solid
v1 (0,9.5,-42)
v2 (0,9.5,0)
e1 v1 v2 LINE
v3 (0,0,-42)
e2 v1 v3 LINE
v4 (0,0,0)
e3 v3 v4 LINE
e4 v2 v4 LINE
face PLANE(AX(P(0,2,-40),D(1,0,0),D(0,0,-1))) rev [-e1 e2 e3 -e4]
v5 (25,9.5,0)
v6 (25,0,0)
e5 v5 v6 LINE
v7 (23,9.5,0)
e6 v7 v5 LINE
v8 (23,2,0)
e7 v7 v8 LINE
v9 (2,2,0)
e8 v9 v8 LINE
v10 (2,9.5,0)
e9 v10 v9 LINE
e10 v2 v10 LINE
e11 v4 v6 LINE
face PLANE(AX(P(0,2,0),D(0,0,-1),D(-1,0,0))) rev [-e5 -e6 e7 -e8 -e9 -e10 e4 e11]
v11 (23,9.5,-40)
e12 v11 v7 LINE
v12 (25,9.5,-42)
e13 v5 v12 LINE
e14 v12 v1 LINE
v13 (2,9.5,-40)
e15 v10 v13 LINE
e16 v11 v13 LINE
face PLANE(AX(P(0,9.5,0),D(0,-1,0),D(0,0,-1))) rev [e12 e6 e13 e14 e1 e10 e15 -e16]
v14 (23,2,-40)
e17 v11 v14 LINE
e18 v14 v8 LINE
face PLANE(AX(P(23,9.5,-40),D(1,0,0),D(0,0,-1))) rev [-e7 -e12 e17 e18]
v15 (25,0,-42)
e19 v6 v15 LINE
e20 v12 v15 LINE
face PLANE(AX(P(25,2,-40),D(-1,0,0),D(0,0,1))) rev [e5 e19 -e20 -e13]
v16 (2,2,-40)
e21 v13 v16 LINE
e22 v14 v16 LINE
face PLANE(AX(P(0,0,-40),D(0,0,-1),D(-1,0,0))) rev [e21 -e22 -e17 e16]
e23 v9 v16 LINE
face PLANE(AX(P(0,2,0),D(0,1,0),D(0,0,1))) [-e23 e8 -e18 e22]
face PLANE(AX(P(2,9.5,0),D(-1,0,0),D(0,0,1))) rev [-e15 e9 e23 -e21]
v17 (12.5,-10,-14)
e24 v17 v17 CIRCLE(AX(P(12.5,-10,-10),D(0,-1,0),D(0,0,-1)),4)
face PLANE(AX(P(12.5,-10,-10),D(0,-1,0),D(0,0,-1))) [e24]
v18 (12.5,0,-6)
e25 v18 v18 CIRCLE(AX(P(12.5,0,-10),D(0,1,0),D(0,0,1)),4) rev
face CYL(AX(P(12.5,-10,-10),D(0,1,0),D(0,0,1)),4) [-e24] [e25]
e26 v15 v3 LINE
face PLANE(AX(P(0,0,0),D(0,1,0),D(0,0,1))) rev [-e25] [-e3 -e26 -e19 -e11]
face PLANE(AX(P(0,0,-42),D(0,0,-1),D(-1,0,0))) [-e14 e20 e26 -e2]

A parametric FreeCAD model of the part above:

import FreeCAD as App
import Part
import Sketcher
from FreeCAD import Vector

doc = App.newDocument("Part")
params = doc.addObject("Spreadsheet::Sheet", "Params")
for row, (alias, value) in enumerate([
    ("sketch1_width", "25 mm"),
    ("sketch1_height", "40 mm"),
    ("pad1_length", "2 mm"),
    ("sketch2_width", "2 mm"),
    ("sketch2_height", "40 mm"),
    ("pad2_length", "7.5 mm"),
    ("sketch3_diameter", "8 mm"),
    ("pad3_length", "10 mm"),
    ("sketch4_width", "25 mm"),
    ("sketch4_height", "9.5 mm"),
    ("pad4_length", "2 mm"),
], start=1):
    params.set(f"A{row}", alias)
    params.set(f"B{row}", "=" + value)
    params.setAlias(f"B{row}", alias)

body = doc.addObject("PartDesign::Body", "Body")

# Sketch on XZ plane
sketch1 = doc.addObject("Sketcher::SketchObject", "Sketch")
body.addObject(sketch1)
sketch1.AttachmentSupport = (doc.XZ_Plane, [""])
sketch1.MapMode = "FlatFace"
sketch1.addGeometry(Part.LineSegment(Vector(0, -40, 0), Vector(0, 0, 0)), False)
sketch1.addGeometry(Part.LineSegment(Vector(0, 0, 0), Vector(25, 0, 0)), False)
sketch1.addGeometry(Part.LineSegment(Vector(25, 0, 0), Vector(25, -40, 0)), False)
sketch1.addGeometry(Part.LineSegment(Vector(25, -40, 0), Vector(0, -40, 0)), False)
sketch1.addConstraint(Sketcher.Constraint("Coincident", 0, 2, 1, 1))
sketch1.addConstraint(Sketcher.Constraint("Coincident", 1, 2, 2, 1))
sketch1.addConstraint(Sketcher.Constraint("Coincident", 2, 2, 3, 1))
sketch1.addConstraint(Sketcher.Constraint("Coincident", 3, 2, 0, 1))
sketch1.addConstraint(Sketcher.Constraint("Vertical", 0))
sketch1.addConstraint(Sketcher.Constraint("Horizontal", 1))
sketch1.addConstraint(Sketcher.Constraint("Vertical", 2))
sketch1.addConstraint(Sketcher.Constraint("Horizontal", 3))
sketch1.addConstraint(Sketcher.Constraint("Coincident", 0, 2, -1, 1))
sketch1.addConstraint(Sketcher.Constraint("DistanceX", 1, 1, 1, 2, 25.0))
sketch1.addConstraint(Sketcher.Constraint("DistanceY", 0, 1, 0, 2, 40.0))
sketch1.setExpression("Constraints[9]", "Params.sketch1_width")
sketch1.setExpression("Constraints[10]", "Params.sketch1_height")
pad1 = doc.addObject("PartDesign::Pad", "Pad")
body.addObject(pad1)
pad1.Profile = sketch1
pad1.setExpression("Length", "Params.pad1_length")
pad1.Reversed = True

# Sketch on XZ plane
sketch2 = doc.addObject("Sketcher::SketchObject", "Sketch001")
body.addObject(sketch2)
sketch2.AttachmentSupport = (doc.XZ_Plane, [""])
sketch2.MapMode = "FlatFace"
sketch2.AttachmentOffset = App.Placement(Vector(0, 0, -2), App.Rotation())
sketch2.addGeometry(Part.LineSegment(Vector(0, -40, 0), Vector(0, 0, 0)), False)
sketch2.addGeometry(Part.LineSegment(Vector(0, 0, 0), Vector(2, 0, 0)), False)
sketch2.addGeometry(Part.LineSegment(Vector(2, 0, 0), Vector(2, -40, 0)), False)
sketch2.addGeometry(Part.LineSegment(Vector(2, -40, 0), Vector(0, -40, 0)), False)
sketch2.addGeometry(Part.LineSegment(Vector(23, -40, 0), Vector(23, 0, 0)), False)
sketch2.addGeometry(Part.LineSegment(Vector(23, 0, 0), Vector(25, 0, 0)), False)
sketch2.addGeometry(Part.LineSegment(Vector(25, 0, 0), Vector(25, -40, 0)), False)
sketch2.addGeometry(Part.LineSegment(Vector(25, -40, 0), Vector(23, -40, 0)), False)
sketch2.addConstraint(Sketcher.Constraint("Coincident", 0, 2, 1, 1))
sketch2.addConstraint(Sketcher.Constraint("Coincident", 1, 2, 2, 1))
sketch2.addConstraint(Sketcher.Constraint("Coincident", 2, 2, 3, 1))
sketch2.addConstraint(Sketcher.Constraint("Coincident", 3, 2, 0, 1))
sketch2.addConstraint(Sketcher.Constraint("Coincident", 4, 2, 5, 1))
sketch2.addConstraint(Sketcher.Constraint("Coincident", 5, 2, 6, 1))
sketch2.addConstraint(Sketcher.Constraint("Coincident", 6, 2, 7, 1))
sketch2.addConstraint(Sketcher.Constraint("Coincident", 7, 2, 4, 1))
sketch2.addConstraint(Sketcher.Constraint("Vertical", 0))
sketch2.addConstraint(Sketcher.Constraint("Horizontal", 1))
sketch2.addConstraint(Sketcher.Constraint("Vertical", 2))
sketch2.addConstraint(Sketcher.Constraint("Horizontal", 3))
sketch2.addConstraint(Sketcher.Constraint("Vertical", 4))
sketch2.addConstraint(Sketcher.Constraint("Horizontal", 5))
sketch2.addConstraint(Sketcher.Constraint("Vertical", 6))
sketch2.addConstraint(Sketcher.Constraint("Horizontal", 7))
sketch2.addConstraint(Sketcher.Constraint("Coincident", 0, 2, -1, 1))
sketch2.addConstraint(Sketcher.Constraint("PointOnObject", 4, 2, -1))
sketch2.addConstraint(Sketcher.Constraint("Horizontal", 3, 2, 6, 2))
sketch2.addConstraint(Sketcher.Constraint("Equal", 3, 5))
sketch2.addConstraint(Sketcher.Constraint("DistanceX", 1, 1, 1, 2, 2.0))
sketch2.addConstraint(Sketcher.Constraint("DistanceY", 0, 1, 0, 2, 40.0))
sketch2.addConstraint(Sketcher.Constraint("DistanceX", -1, 1, 4, 2, 23.0))
sketch2.setExpression("Constraints[20]", "Params.sketch2_width")
sketch2.setExpression("Constraints[21]", "Params.sketch2_height")
pad2 = doc.addObject("PartDesign::Pad", "Pad001")
body.addObject(pad2)
pad2.Profile = sketch2
pad2.setExpression("Length", "Params.pad2_length")
pad2.Reversed = True

# Sketch on XZ plane
sketch3 = doc.addObject("Sketcher::SketchObject", "Sketch002")
body.addObject(sketch3)
sketch3.AttachmentSupport = (doc.XZ_Plane, [""])
sketch3.MapMode = "FlatFace"
sketch3.addGeometry(Part.Circle(Vector(12.5, -10, 0), Vector(0, 0, 1), 4), False)
sketch3.addConstraint(Sketcher.Constraint("Diameter", 0, 8.0))
sketch3.addConstraint(Sketcher.Constraint("DistanceY", 0, 3, -1, 1, 10.0))
sketch3.addConstraint(Sketcher.Constraint("DistanceX", -1, 1, 0, 3, 12.5))
sketch3.setExpression("Constraints[0]", "Params.sketch3_diameter")
pad3 = doc.addObject("PartDesign::Pad", "Pad002")
body.addObject(pad3)
pad3.Profile = sketch3
pad3.setExpression("Length", "Params.pad3_length")

# Sketch on XY plane
sketch4 = doc.addObject("Sketcher::SketchObject", "Sketch003")
body.addObject(sketch4)
sketch4.AttachmentSupport = (doc.XY_Plane, [""])
sketch4.MapMode = "FlatFace"
sketch4.AttachmentOffset = App.Placement(Vector(0, 0, -40), App.Rotation())
sketch4.addGeometry(Part.LineSegment(Vector(25, 9.5, 0), Vector(25, 0, 0)), False)
sketch4.addGeometry(Part.LineSegment(Vector(25, 0, 0), Vector(0, 0, 0)), False)
sketch4.addGeometry(Part.LineSegment(Vector(0, 0, 0), Vector(0, 9.5, 0)), False)
sketch4.addGeometry(Part.LineSegment(Vector(0, 9.5, 0), Vector(25, 9.5, 0)), False)
sketch4.addConstraint(Sketcher.Constraint("Coincident", 0, 2, 1, 1))
sketch4.addConstraint(Sketcher.Constraint("Coincident", 1, 2, 2, 1))
sketch4.addConstraint(Sketcher.Constraint("Coincident", 2, 2, 3, 1))
sketch4.addConstraint(Sketcher.Constraint("Coincident", 3, 2, 0, 1))
sketch4.addConstraint(Sketcher.Constraint("Vertical", 0))
sketch4.addConstraint(Sketcher.Constraint("Horizontal", 1))
sketch4.addConstraint(Sketcher.Constraint("Vertical", 2))
sketch4.addConstraint(Sketcher.Constraint("Horizontal", 3))
sketch4.addConstraint(Sketcher.Constraint("Coincident", 1, 2, -1, 1))
sketch4.addConstraint(Sketcher.Constraint("DistanceX", 1, 2, 1, 1, 25.0))
sketch4.addConstraint(Sketcher.Constraint("DistanceY", 0, 2, 0, 1, 9.5))
sketch4.setExpression("Constraints[9]", "Params.sketch4_width")
sketch4.setExpression("Constraints[10]", "Params.sketch4_height")
pad4 = doc.addObject("PartDesign::Pad", "Pad003")
body.addObject(pad4)
pad4.Profile = sketch4
pad4.setExpression("Length", "Params.pad4_length")
pad4.Reversed = True

doc.recompute()
